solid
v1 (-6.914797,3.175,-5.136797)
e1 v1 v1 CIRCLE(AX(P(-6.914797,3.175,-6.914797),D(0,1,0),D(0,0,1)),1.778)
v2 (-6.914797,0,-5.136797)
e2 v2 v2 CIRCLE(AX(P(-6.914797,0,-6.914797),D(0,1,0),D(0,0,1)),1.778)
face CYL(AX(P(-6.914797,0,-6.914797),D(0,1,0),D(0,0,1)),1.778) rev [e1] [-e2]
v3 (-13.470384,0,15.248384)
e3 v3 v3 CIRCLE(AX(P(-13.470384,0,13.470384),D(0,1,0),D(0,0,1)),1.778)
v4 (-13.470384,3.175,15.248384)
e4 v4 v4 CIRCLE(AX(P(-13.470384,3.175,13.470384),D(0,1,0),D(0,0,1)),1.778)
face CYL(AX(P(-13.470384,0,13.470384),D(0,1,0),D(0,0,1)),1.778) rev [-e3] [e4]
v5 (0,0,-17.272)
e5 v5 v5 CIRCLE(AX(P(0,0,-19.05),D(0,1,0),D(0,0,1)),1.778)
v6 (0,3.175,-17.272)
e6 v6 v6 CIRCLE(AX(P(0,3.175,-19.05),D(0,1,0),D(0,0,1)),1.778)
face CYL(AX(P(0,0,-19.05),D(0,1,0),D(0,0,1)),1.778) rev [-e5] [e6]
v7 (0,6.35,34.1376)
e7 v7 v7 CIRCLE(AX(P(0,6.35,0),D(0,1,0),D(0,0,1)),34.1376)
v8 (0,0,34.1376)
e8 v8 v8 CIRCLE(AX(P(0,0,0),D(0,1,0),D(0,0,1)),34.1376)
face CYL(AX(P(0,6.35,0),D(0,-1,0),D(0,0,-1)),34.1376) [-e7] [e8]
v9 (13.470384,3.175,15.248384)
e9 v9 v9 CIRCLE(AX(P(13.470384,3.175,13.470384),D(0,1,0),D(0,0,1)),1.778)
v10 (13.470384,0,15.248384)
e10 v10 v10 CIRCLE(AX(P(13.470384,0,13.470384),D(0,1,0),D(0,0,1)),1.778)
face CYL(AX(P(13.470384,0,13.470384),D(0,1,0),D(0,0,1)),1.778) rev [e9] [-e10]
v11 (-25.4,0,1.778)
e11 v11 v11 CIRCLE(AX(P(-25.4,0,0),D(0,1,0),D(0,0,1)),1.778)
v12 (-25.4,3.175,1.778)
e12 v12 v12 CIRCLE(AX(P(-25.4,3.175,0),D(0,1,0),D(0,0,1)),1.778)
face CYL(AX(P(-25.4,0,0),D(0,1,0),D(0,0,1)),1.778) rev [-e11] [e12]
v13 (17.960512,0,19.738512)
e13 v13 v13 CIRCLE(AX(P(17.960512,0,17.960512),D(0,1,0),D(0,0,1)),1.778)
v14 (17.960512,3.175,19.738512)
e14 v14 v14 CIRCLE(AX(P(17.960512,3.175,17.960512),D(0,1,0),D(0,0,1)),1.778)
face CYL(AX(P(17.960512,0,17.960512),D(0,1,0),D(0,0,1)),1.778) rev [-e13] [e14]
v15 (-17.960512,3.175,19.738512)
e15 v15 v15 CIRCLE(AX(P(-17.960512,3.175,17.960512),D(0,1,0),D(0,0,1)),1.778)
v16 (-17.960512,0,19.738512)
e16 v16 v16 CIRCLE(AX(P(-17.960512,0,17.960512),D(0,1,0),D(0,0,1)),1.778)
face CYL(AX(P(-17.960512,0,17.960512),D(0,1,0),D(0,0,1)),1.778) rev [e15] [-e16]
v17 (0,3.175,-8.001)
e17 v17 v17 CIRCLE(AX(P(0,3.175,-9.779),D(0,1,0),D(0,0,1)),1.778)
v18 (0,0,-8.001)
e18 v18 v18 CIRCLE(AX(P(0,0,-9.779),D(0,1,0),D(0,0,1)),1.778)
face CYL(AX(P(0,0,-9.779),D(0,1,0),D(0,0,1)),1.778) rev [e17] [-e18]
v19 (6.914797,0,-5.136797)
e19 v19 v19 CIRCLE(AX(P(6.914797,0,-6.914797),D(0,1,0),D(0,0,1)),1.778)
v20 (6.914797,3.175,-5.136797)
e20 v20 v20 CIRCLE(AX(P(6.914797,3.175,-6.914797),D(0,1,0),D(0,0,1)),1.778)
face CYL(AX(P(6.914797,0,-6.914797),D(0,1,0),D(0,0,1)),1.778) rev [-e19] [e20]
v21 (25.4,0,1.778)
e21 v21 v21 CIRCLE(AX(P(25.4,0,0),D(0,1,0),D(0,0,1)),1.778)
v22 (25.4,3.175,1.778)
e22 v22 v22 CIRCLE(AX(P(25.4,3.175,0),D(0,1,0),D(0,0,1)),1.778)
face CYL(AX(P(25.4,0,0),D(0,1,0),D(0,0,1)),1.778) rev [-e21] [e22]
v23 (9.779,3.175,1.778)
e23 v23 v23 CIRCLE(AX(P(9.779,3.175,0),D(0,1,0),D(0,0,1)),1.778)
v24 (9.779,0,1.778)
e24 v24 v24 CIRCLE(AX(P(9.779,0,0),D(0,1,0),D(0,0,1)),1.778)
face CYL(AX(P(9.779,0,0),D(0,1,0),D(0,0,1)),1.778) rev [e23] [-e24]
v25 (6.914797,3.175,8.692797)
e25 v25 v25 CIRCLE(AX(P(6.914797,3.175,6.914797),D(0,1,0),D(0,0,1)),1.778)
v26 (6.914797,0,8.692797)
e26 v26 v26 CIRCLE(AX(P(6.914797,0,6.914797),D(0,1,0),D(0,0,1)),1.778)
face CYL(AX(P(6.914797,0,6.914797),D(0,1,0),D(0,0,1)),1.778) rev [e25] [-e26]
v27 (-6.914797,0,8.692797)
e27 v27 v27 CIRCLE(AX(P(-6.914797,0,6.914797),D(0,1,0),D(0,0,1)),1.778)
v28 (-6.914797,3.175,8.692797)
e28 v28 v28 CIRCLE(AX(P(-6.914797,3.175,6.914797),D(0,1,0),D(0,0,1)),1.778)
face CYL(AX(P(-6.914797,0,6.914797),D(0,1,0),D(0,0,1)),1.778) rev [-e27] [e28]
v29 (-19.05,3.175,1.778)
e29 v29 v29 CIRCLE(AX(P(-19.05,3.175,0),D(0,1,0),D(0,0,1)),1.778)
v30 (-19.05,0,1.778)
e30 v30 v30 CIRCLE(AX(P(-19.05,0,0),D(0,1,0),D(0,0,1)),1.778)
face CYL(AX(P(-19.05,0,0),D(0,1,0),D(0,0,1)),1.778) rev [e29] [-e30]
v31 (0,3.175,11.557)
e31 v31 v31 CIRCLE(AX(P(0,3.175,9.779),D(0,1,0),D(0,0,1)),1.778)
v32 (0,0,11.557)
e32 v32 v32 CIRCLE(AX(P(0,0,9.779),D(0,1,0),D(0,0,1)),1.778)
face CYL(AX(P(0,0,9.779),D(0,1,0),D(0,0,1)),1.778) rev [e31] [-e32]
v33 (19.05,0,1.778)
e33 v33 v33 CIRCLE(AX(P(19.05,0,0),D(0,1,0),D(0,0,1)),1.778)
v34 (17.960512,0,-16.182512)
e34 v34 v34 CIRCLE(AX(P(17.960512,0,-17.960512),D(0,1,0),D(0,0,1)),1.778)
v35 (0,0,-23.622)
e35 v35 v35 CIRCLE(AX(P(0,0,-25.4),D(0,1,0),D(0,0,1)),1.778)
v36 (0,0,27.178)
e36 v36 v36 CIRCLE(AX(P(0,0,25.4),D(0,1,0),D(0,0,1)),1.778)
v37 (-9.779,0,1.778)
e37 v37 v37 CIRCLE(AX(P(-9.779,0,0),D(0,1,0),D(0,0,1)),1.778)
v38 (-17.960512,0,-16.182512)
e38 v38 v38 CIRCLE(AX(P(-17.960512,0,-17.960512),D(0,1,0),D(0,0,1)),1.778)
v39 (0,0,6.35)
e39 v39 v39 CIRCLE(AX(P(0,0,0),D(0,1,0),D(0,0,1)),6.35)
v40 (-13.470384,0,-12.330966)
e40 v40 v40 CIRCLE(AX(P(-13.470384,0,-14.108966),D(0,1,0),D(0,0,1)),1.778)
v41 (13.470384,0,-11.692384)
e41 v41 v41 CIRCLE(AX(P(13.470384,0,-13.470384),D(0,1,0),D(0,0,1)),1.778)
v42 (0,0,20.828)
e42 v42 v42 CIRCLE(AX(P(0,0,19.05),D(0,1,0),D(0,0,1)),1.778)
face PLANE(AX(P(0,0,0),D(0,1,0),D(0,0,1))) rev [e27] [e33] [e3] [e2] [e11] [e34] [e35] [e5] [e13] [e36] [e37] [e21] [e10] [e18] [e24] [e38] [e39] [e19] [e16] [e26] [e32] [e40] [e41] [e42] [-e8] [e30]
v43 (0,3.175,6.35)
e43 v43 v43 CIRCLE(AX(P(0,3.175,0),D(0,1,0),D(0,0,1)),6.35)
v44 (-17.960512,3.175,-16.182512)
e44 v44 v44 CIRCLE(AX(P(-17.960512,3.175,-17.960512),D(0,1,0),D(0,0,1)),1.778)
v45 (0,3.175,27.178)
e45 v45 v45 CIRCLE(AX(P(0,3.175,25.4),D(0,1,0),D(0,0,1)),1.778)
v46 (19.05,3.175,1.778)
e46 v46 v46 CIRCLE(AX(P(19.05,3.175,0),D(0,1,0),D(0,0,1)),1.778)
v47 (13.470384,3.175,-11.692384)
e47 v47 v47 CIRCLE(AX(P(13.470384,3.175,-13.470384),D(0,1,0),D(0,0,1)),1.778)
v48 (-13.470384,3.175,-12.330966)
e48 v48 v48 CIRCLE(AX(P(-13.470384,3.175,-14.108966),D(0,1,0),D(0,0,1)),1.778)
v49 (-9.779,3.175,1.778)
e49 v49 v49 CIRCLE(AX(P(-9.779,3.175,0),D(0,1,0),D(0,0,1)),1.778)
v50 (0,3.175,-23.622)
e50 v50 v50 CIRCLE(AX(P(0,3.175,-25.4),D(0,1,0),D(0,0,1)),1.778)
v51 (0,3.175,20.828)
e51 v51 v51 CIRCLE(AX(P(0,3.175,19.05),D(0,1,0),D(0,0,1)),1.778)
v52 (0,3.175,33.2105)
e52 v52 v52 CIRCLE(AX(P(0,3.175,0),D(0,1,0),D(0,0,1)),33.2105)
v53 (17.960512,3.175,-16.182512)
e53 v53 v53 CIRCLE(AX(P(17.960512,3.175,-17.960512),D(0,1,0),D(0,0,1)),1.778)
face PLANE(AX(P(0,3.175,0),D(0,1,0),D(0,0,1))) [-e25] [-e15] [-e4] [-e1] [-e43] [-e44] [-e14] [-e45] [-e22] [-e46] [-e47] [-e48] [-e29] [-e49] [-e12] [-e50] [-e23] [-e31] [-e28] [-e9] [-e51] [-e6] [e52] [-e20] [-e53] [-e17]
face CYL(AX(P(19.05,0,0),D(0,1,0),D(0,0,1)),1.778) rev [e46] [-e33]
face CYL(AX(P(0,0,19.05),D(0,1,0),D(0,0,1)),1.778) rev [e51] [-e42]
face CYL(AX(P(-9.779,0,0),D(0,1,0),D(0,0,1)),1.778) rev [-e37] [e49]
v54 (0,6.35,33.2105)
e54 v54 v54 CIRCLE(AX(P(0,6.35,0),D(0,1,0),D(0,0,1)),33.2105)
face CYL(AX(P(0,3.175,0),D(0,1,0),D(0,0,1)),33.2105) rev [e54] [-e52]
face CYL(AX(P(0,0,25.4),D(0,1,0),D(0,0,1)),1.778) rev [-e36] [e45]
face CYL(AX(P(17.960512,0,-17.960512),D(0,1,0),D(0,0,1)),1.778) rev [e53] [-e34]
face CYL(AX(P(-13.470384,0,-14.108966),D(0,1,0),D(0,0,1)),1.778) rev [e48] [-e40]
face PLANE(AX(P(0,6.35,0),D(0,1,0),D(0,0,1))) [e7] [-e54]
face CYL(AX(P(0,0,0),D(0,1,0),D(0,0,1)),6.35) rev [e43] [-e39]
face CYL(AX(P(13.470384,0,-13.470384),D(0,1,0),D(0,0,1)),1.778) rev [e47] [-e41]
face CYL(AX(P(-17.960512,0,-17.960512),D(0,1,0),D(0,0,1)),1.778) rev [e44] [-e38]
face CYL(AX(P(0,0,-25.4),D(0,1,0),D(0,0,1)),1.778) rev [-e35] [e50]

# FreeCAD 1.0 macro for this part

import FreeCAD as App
import Part
import Sketcher

V = App.Vector
Q = App.Units.Quantity

doc = App.newDocument("Part")
params = doc.addObject("Spreadsheet::Sheet", "Params")
for row, (alias, value) in enumerate([
    ("sketch1_diameter", "2.688 in"),
    ("pad1_length", "0.25 in"),
    ("sketch2_diameter", "2.615 in"),
    ("pocket1_length", "0.125 in"),
    ("sketch3_diameter", "0.5 in"),
    ("pocket2_length", "0.125 in"),
    ("sketch4_diameter", "0.5 in"),
    ("sketch4_diameter2", "0.14 in"),
    ("pocket3_length", "0.125 in"),
    ("sketch5_diameter", "0.14 in"),
    ("pocket4_length", "0.125 in"),
    ("sketch6_diameter", "0.14 in"),
    ("pocket5_length", "0.125 in"),
], start=1):
    params.set(f"A{row}", alias)
    params.set(f"B{row}", "=" + value)
    params.setAlias(f"B{row}", alias)

body = doc.addObject("PartDesign::Body", "Body")

sketch1 = body.newObject("Sketcher::SketchObject", "Sketch")
sketch1.AttachmentSupport = (doc.getObject("XZ_Plane"), [""])
sketch1.MapMode = "FlatFace"
sketch1.addGeometry(Part.Circle(V(0, 0, 0), V(0, 0, 1), 34), False)
sketch1.addConstraint([
    Sketcher.Constraint("Coincident", 0, 3, -1, 1),
    Sketcher.Constraint("Diameter", 0, Q("2.688 in")),
])
sketch1.setExpression("Constraints[1]", "Params.sketch1_diameter")
pad1 = body.newObject("PartDesign::Pad", "Pad")
pad1.Profile = sketch1
pad1.setExpression("Length", "Params.pad1_length")
pad1.Reversed = True

sketch2 = body.newObject("Sketcher::SketchObject", "Sketch001")
sketch2.AttachmentSupport = (doc.getObject("XZ_Plane"), [""])
sketch2.MapMode = "FlatFace"
sketch2.AttachmentOffset = App.Placement(V(0, 0, -0.25 * 25.4), App.Rotation())
sketch2.addGeometry(Part.Circle(V(0, 0, 0), V(0, 0, 1), 33), False)
sketch2.addConstraint([
    Sketcher.Constraint("Coincident", 0, 3, -1, 1),
    Sketcher.Constraint("Diameter", 0, Q("2.615 in")),
])
sketch2.setExpression("Constraints[1]", "Params.sketch2_diameter")
pocket1 = body.newObject("PartDesign::Pocket", "Pocket")
pocket1.Profile = sketch2
pocket1.setExpression("Length", "Params.pocket1_length")
pocket1.Reversed = True

sketch3 = body.newObject("Sketcher::SketchObject", "Sketch002")
sketch3.AttachmentSupport = (doc.getObject("XZ_Plane"), [""])
sketch3.MapMode = "FlatFace"
sketch3.AttachmentOffset = App.Placement(V(0, 0, -0.125 * 25.4), App.Rotation())
sketch3.addGeometry(Part.Circle(V(0, 0, 0), V(0, 0, 1), 6), False)
sketch3.addConstraint([
    Sketcher.Constraint("Coincident", 0, 3, -1, 1),
    Sketcher.Constraint("Diameter", 0, Q("0.5 in")),
])
sketch3.setExpression("Constraints[1]", "Params.sketch3_diameter")
pocket2 = body.newObject("PartDesign::Pocket", "Pocket001")
pocket2.Profile = sketch3
pocket2.setExpression("Length", "Params.pocket2_length")
pocket2.Reversed = True

sketch4 = body.newObject("Sketcher::SketchObject", "Sketch003")
sketch4.AttachmentSupport = (doc.getObject("XZ_Plane"), [""])
sketch4.MapMode = "FlatFace"
sketch4.AttachmentOffset = App.Placement(V(0, 0, -0.125 * 25.4), App.Rotation())
sketch4.addGeometry([
    Part.Circle(V(0, 0, 0), V(0, 0, 1), 6.3),
    Part.Circle(V(25.4, 0, 0), V(0, 0, 1), 1.8),
    Part.Circle(V(18, -18, 0), V(0, 0, 1), 1.8),
    Part.Circle(V(0, -25.4, 0), V(0, 0, 1), 1.8),
    Part.Circle(V(-18, -18, 0), V(0, 0, 1), 1.8),
    Part.Circle(V(-25.4, 0, 0), V(0, 0, 1), 1.8),
    Part.Circle(V(-18, 18, 0), V(0, 0, 1), 1.8),
    Part.Circle(V(0, 25.4, 0), V(0, 0, 1), 1.8),
    Part.Circle(V(18, 18, 0), V(0, 0, 1), 1.8),
], False)
sketch4.addConstraint([
    Sketcher.Constraint("Coincident", 0, 3, -1, 1),
    Sketcher.Constraint("Equal", 1, 2),
    Sketcher.Constraint("Equal", 2, 3),
    Sketcher.Constraint("Equal", 3, 4),
    Sketcher.Constraint("Equal", 4, 5),
    Sketcher.Constraint("Equal", 5, 6),
    Sketcher.Constraint("Equal", 6, 7),
    Sketcher.Constraint("Equal", 7, 8),
    Sketcher.Constraint("Symmetric", 1, 3, 5, 3, -1, 1),
    Sketcher.Constraint("Symmetric", 2, 3, 6, 3, -1, 1),
    Sketcher.Constraint("Symmetric", 3, 3, 7, 3, -1, 1),
    Sketcher.Constraint("Symmetric", 4, 3, 8, 3, -1, 1),
    Sketcher.Constraint("Symmetric", 2, 3, 4, 3, -2),
    Sketcher.Constraint("PointOnObject", 1, 3, -1),
    Sketcher.Constraint("PointOnObject", 3, 3, -2),
    Sketcher.Constraint("Diameter", 0, Q("0.5 in")),
    Sketcher.Constraint("Diameter", 1, Q("0.14 in")),
    Sketcher.Constraint("DistanceX", -1, 1, 1, 3, Q("1 in")),
    Sketcher.Constraint("DistanceY", 3, 3, -1, 1, Q("1 in")),
    Sketcher.Constraint("DistanceX", -1, 1, 2, 3, Q("17.960512 mm")),
    Sketcher.Constraint("DistanceY", 2, 3, -1, 1, Q("17.960512 mm")),
])
sketch4.setExpression("Constraints[15]", "Params.sketch4_diameter")
sketch4.setExpression("Constraints[16]", "Params.sketch4_diameter2")
pocket3 = body.newObject("PartDesign::Pocket", "Pocket002")
pocket3.Profile = sketch4
pocket3.setExpression("Length", "Params.pocket3_length")
pocket3.Reversed = True

sketch5 = body.newObject("Sketcher::SketchObject", "Sketch004")
sketch5.AttachmentSupport = (doc.getObject("XZ_Plane"), [""])
sketch5.MapMode = "FlatFace"
sketch5.AttachmentOffset = App.Placement(V(0, 0, -0.125 * 25.4), App.Rotation())
sketch5.addGeometry([
    Part.Circle(V(0, -19.1, 0), V(0, 0, 1), 1.8),
    Part.Circle(V(-13.5, -14.1, 0), V(0, 0, 1), 1.8),
    Part.Circle(V(-19.1, 0, 0), V(0, 0, 1), 1.8),
    Part.Circle(V(-13.5, 13.5, 0), V(0, 0, 1), 1.8),
    Part.Circle(V(0, 19.1, 0), V(0, 0, 1), 1.8),
    Part.Circle(V(13.5, 13.5, 0), V(0, 0, 1), 1.8),
    Part.Circle(V(19.1, 0, 0), V(0, 0, 1), 1.8),
    Part.Circle(V(13.5, -13.5, 0), V(0, 0, 1), 1.8),
], False)
sketch5.addConstraint([
    Sketcher.Constraint("Equal", 0, 1),
    Sketcher.Constraint("Equal", 1, 2),
    Sketcher.Constraint("Equal", 2, 3),
    Sketcher.Constraint("Equal", 3, 4),
    Sketcher.Constraint("Equal", 4, 5),
    Sketcher.Constraint("Equal", 5, 6),
    Sketcher.Constraint("Equal", 6, 7),
    Sketcher.Constraint("Symmetric", 0, 3, 4, 3, -1, 1),
    Sketcher.Constraint("Symmetric", 2, 3, 6, 3, -1, 1),
    Sketcher.Constraint("Symmetric", 3, 3, 7, 3, -1, 1),
    Sketcher.Constraint("Symmetric", 3, 3, 5, 3, -2),
    Sketcher.Constraint("PointOnObject", 0, 3, -2),
    Sketcher.Constraint("PointOnObject", 2, 3, -1),
    Sketcher.Constraint("Vertical", 1, 3, 3, 3),
    Sketcher.Constraint("Diameter", 0, Q("0.14 in")),
    Sketcher.Constraint("DistanceY", 0, 3, 4, 3, Q("1.5 in")),
    Sketcher.Constraint("DistanceX", 2, 3, -1, 1, Q("0.75 in")),
    Sketcher.Constraint("DistanceY", 1, 3, 3, 3, Q("27.57935 mm")),
    Sketcher.Constraint("DistanceX", 3, 3, 5, 3, Q("26.940768 mm")),
    Sketcher.Constraint("DistanceY", 7, 3, 5, 3, Q("26.940768 mm")),
])
sketch5.setExpression("Constraints[14]", "Params.sketch5_diameter")
pocket4 = body.newObject("PartDesign::Pocket", "Pocket003")
pocket4.Profile = sketch5
pocket4.setExpression("Length", "Params.pocket4_length")
pocket4.Reversed = True

sketch6 = body.newObject("Sketcher::SketchObject", "Sketch005")
sketch6.AttachmentSupport = (doc.getObject("XZ_Plane"), [""])
sketch6.MapMode = "FlatFace"
sketch6.AttachmentOffset = App.Placement(V(0, 0, -0.125 * 25.4), App.Rotation())
sketch6.addGeometry([
    Part.Circle(V(9.8, 0, 0), V(0, 0, 1), 1.8),
    Part.Circle(V(6.9, -6.9, 0), V(0, 0, 1), 1.8),
    Part.Circle(V(0, -9.8, 0), V(0, 0, 1), 1.8),
    Part.Circle(V(-6.9, -6.9, 0), V(0, 0, 1), 1.8),
    Part.Circle(V(-9.8, 0, 0), V(0, 0, 1), 1.8),
    Part.Circle(V(-6.9, 6.9, 0), V(0, 0, 1), 1.8),
    Part.Circle(V(0, 9.8, 0), V(0, 0, 1), 1.8),
    Part.Circle(V(6.9, 6.9, 0), V(0, 0, 1), 1.8),
], False)
sketch6.addConstraint([
    Sketcher.Constraint("Equal", 0, 1),
    Sketcher.Constraint("Equal", 1, 2),
    Sketcher.Constraint("Equal", 2, 3),
    Sketcher.Constraint("Equal", 3, 4),
    Sketcher.Constraint("Equal", 4, 5),
    Sketcher.Constraint("Equal", 5, 6),
    Sketcher.Constraint("Equal", 6, 7),
    Sketcher.Constraint("Symmetric", 0, 3, 4, 3, -1, 1),
    Sketcher.Constraint("Symmetric", 1, 3, 5, 3, -1, 1),
    Sketcher.Constraint("Symmetric", 2, 3, 6, 3, -1, 1),
    Sketcher.Constraint("Symmetric", 3, 3, 7, 3, -1, 1),
    Sketcher.Constraint("Symmetric", 1, 3, 3, 3, -2),
    Sketcher.Constraint("PointOnObject", 0, 3, -1),
    Sketcher.Constraint("PointOnObject", 2, 3, -2),
    Sketcher.Constraint("Diameter", 0, Q("0.14 in")),
    Sketcher.Constraint("DistanceX", 4, 3, 0, 3, Q("0.77 in")),
    Sketcher.Constraint("DistanceY", 2, 3, -1, 1, Q("0.385 in")),
    Sketcher.Constraint("DistanceX", -1, 1, 1, 3, Q("6.914797 mm")),
    Sketcher.Constraint("DistanceY", 1, 3, -1, 1, Q("6.914797 mm")),
])
sketch6.setExpression("Constraints[14]", "Params.sketch6_diameter")
pocket5 = body.newObject("PartDesign::Pocket", "Pocket004")
pocket5.Profile = sketch6
pocket5.setExpression("Length", "Params.pocket5_length")
pocket5.Reversed = True

doc.recompute()
